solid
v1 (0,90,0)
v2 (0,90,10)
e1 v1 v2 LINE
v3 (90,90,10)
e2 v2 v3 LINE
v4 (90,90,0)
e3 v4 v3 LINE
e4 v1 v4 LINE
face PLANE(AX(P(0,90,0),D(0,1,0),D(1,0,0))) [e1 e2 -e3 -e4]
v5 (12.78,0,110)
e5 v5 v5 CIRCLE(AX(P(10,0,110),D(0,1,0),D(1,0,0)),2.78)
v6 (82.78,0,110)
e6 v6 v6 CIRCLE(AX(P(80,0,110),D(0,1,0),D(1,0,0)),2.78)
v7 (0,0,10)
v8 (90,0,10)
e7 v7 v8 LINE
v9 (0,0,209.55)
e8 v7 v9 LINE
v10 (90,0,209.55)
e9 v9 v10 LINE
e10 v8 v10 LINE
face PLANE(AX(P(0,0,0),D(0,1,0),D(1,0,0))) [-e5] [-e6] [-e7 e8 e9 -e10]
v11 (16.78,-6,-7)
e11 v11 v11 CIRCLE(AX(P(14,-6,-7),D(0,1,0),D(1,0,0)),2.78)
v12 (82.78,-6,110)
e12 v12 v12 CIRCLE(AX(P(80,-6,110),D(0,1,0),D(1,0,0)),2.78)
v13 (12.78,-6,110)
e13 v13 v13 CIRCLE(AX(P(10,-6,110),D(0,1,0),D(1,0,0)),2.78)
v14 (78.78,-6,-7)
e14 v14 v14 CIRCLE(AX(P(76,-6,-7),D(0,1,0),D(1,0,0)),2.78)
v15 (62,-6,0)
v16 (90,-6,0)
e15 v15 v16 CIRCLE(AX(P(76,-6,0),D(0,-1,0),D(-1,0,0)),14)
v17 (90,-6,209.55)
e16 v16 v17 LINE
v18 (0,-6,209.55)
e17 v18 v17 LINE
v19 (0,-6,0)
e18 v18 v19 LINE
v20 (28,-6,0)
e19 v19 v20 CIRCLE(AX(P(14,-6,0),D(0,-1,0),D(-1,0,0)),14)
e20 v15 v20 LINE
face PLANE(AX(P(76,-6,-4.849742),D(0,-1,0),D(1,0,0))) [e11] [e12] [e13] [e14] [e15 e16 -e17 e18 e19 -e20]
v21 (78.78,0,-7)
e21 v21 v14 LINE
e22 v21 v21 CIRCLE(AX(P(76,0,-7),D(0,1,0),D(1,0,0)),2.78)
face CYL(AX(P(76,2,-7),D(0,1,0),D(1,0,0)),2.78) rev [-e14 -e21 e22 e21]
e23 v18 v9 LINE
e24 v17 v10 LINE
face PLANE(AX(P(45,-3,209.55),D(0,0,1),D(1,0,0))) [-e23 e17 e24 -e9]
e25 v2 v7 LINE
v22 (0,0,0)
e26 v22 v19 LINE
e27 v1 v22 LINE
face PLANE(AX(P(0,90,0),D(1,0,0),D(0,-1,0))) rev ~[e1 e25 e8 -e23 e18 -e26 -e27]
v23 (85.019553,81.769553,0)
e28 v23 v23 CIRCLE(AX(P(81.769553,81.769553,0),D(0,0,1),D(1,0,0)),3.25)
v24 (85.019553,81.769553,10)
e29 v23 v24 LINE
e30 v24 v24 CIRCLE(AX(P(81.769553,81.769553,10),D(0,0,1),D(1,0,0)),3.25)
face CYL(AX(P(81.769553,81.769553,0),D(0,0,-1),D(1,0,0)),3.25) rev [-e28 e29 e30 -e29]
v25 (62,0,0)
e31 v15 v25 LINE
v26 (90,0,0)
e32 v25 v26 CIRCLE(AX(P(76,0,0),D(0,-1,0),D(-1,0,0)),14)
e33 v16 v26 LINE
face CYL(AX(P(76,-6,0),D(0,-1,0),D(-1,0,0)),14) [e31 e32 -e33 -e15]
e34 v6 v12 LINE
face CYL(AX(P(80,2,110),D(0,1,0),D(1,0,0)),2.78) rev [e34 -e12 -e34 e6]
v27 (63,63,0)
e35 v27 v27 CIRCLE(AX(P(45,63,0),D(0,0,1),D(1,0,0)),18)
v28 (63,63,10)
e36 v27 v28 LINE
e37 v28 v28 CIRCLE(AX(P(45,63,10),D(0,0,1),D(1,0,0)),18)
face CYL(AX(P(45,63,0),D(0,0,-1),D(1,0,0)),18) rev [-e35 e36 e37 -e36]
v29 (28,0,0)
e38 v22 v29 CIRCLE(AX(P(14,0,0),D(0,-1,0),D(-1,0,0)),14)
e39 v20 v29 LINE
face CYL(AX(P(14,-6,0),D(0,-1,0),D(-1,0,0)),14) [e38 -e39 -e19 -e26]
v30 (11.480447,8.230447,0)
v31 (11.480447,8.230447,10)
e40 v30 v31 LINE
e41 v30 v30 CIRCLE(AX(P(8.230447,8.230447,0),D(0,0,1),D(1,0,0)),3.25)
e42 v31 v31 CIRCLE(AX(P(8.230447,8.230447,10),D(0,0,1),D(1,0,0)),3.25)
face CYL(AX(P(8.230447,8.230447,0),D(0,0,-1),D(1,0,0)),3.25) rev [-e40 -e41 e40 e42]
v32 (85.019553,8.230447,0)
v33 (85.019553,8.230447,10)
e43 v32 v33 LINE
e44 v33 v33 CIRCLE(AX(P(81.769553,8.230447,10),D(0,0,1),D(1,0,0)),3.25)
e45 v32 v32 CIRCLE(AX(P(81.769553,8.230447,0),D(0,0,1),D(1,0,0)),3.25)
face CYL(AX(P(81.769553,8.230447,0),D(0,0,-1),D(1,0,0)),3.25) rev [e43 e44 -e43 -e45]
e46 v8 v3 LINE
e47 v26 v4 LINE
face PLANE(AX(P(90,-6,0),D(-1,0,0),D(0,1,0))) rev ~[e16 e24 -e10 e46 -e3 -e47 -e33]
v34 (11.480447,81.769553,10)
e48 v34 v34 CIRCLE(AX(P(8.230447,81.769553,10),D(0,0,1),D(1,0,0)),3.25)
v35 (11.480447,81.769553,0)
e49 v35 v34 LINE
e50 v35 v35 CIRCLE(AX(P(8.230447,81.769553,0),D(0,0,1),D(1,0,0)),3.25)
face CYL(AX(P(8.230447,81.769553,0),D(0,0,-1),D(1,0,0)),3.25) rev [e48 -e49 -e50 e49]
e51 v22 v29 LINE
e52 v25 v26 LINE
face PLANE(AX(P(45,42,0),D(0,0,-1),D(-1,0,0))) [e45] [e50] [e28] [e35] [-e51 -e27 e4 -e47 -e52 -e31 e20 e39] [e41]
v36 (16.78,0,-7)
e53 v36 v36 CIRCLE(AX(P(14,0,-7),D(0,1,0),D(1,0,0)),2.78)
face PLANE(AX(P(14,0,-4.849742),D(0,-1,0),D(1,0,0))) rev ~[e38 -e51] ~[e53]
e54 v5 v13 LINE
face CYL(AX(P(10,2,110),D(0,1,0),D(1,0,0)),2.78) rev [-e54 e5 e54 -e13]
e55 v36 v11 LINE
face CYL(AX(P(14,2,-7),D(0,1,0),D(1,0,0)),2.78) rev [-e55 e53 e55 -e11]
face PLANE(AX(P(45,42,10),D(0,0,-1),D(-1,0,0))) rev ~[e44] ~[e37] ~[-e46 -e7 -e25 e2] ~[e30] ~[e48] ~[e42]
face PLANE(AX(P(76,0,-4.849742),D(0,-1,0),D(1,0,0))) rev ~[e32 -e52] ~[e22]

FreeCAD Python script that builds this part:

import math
import FreeCAD as App
import Part
import Sketcher
Q = App.Units.Quantity


def add_polygon(sketch, points):
    """Adds a closed chain of lines whose ends are joined by coincident constraints."""
    first, n = sketch.GeometryCount, len(points)
    for a, b in zip(points, points[1:] + points[:1]):
        sketch.addGeometry(Part.LineSegment(App.Vector(*a, 0), App.Vector(*b, 0)), False)
    for i in range(n):
        sketch.addConstraint(Sketcher.Constraint("Coincident", first + i, 2, first + (i + 1) % n, 1))

doc = App.newDocument("Part")
body = doc.addObject("PartDesign::Body", "Body")

# Sketch on XZ plane
sketch1 = body.newObject("Sketcher::SketchObject", "Sketch")
sketch1.AttachmentSupport = (doc.getObject("XZ_Plane"), [""])
sketch1.MapMode = "FlatFace"
sketch1.AttachmentOffset = App.Placement(App.Vector(0, 0, -2), App.Rotation())
sketch1.addGeometry(Part.Circle(App.Vector(14, -7, 0), App.Vector(0, 0, 1), 2.78), False)
sketch1.addConstraint([
    Sketcher.Constraint("Diameter", 0, Q("5.56 mm")),
    Sketcher.Constraint("DistanceX", -1, 1, 0, 3, Q("14 mm")),
    Sketcher.Constraint("DistanceY", 0, 3, -1, 1, Q("7 mm")),
])
pad1 = body.newObject("PartDesign::Pad", "Pad")
pad1.Profile = sketch1
pad1.Length = 10
body2 = doc.addObject("PartDesign::Body", "Body001")

# Sketch on XZ plane
sketch2 = body2.newObject("Sketcher::SketchObject", "Sketch001")
sketch2.AttachmentSupport = (doc.getObject("XZ_Plane001"), [""])
sketch2.MapMode = "FlatFace"
sketch2.AttachmentOffset = App.Placement(App.Vector(0, 0, -2), App.Rotation())
sketch2.addGeometry(Part.Circle(App.Vector(76, -7, 0), App.Vector(0, 0, 1), 2.78), False)
sketch2.addConstraint([
    Sketcher.Constraint("Diameter", 0, Q("5.56 mm")),
    Sketcher.Constraint("DistanceX", -1, 1, 0, 3, Q("76 mm")),
    Sketcher.Constraint("DistanceY", 0, 3, -1, 1, Q("7 mm")),
])
pad2 = body2.newObject("PartDesign::Pad", "Pad001")
pad2.Profile = sketch2
pad2.Length = 10
body3 = doc.addObject("PartDesign::Body", "Body002")
body3.AllowCompound = True

# Sketch on XZ plane
sketch3 = body3.newObject("Sketcher::SketchObject", "Sketch002")
sketch3.AttachmentSupport = (doc.getObject("XZ_Plane002"), [""])
sketch3.MapMode = "FlatFace"
sketch3.AttachmentOffset = App.Placement(App.Vector(0, 0, 6), App.Rotation())
sketch3.addGeometry([
    Part.ArcOfCircle(Part.Circle(App.Vector(14, 0, 0), App.Vector(0, 0, 1), 14), math.radians(180), math.radians(360)),
    Part.LineSegment(App.Vector(28, 0, 0), App.Vector(0, 0, 0)),
    Part.ArcOfCircle(Part.Circle(App.Vector(76, 0, 0), App.Vector(0, 0, 1), 14), math.radians(180), math.radians(360)),
    Part.LineSegment(App.Vector(90, 0, 0), App.Vector(62, 0, 0)),
], False)
sketch3.addConstraint([
    Sketcher.Constraint("Coincident", 0, 1, 1, 2),
    Sketcher.Constraint("Coincident", 1, 1, 0, 2),
    Sketcher.Constraint("Coincident", 2, 1, 3, 2),
    Sketcher.Constraint("Coincident", 3, 1, 2, 2),
    Sketcher.Constraint("Horizontal", 1),
    Sketcher.Constraint("Horizontal", 3),
    Sketcher.Constraint("Coincident", 0, 1, -1, 1),
    Sketcher.Constraint("Equal", 0, 2),
    Sketcher.Constraint("PointOnObject", 0, 3, -1),
    Sketcher.Constraint("PointOnObject", 2, 3, -1),
    Sketcher.Constraint("PointOnObject", 2, 1, -1),
    Sketcher.Constraint("Radius", 0, Q("14 mm")),
    Sketcher.Constraint("DistanceX", -1, 1, 2, 3, Q("76 mm")),
])
pad3 = body3.newObject("PartDesign::Pad", "Pad002")
pad3.Profile = sketch3
pad3.Length = 6
pad3.Reversed = True
doc.recompute()

boolean = body3.newObject("PartDesign::Boolean", "Boolean")
boolean.Type = "Cut"
boolean.addObjects([body2])
doc.recompute()

boolean2 = body3.newObject("PartDesign::Boolean", "Boolean001")
boolean2.Type = "Cut"
boolean2.addObjects([body])
body4 = doc.addObject("PartDesign::Body", "Body003")

# Sketch on XZ plane
sketch4 = body4.newObject("Sketcher::SketchObject", "Sketch003")
sketch4.AttachmentSupport = (doc.getObject("XZ_Plane003"), [""])
sketch4.MapMode = "FlatFace"
sketch4.AttachmentOffset = App.Placement(App.Vector(0, 0, -2), App.Rotation())
sketch4.addGeometry(Part.Circle(App.Vector(80, 110, 0), App.Vector(0, 0, 1), 2.78), False)
sketch4.addConstraint([
    Sketcher.Constraint("Diameter", 0, Q("5.56 mm")),
    Sketcher.Constraint("DistanceX", -1, 1, 0, 3, Q("80 mm")),
    Sketcher.Constraint("DistanceY", -1, 1, 0, 3, Q("110 mm")),
])
pad4 = body4.newObject("PartDesign::Pad", "Pad003")
pad4.Profile = sketch4
pad4.Length = 10
body5 = doc.addObject("PartDesign::Body", "Body004")

# Sketch on XZ plane
sketch5 = body5.newObject("Sketcher::SketchObject", "Sketch004")
sketch5.AttachmentSupport = (doc.getObject("XZ_Plane004"), [""])
sketch5.MapMode = "FlatFace"
sketch5.AttachmentOffset = App.Placement(App.Vector(0, 0, -2), App.Rotation())
sketch5.addGeometry(Part.Circle(App.Vector(10, 110, 0), App.Vector(0, 0, 1), 2.78), False)
sketch5.addConstraint([
    Sketcher.Constraint("Diameter", 0, Q("5.56 mm")),
    Sketcher.Constraint("DistanceX", -1, 1, 0, 3, Q("10 mm")),
    Sketcher.Constraint("DistanceY", -1, 1, 0, 3, Q("110 mm")),
])
pad5 = body5.newObject("PartDesign::Pad", "Pad004")
pad5.Profile = sketch5
pad5.Length = 10
body6 = doc.addObject("PartDesign::Body", "Body005")

# Sketch on XY plane
sketch6 = body6.newObject("Sketcher::SketchObject", "Sketch005")
sketch6.AttachmentSupport = (doc.getObject("XY_Plane005"), [""])
sketch6.MapMode = "FlatFace"
add_polygon(sketch6, [(0, 0), (0, -6), (90, -6), (90, 0)])  # lines 0-3
sketch6.addConstraint([
    Sketcher.Constraint("Vertical", 0),
    Sketcher.Constraint("Horizontal", 1),
    Sketcher.Constraint("Vertical", 2),
    Sketcher.Constraint("Horizontal", 3),
    Sketcher.Constraint("Coincident", 3, 2, -1, 1),
    Sketcher.Constraint("DistanceX", 1, 1, 1, 2, Q("90 mm")),
    Sketcher.Constraint("DistanceY", 0, 2, 0, 1, Q("6 mm")),
])
pad6 = body6.newObject("PartDesign::Pad", "Pad005")
pad6.Profile = sketch6
pad6.Length = 209.55
doc.recompute()

boolean3 = body6.newObject("PartDesign::Boolean", "Boolean002")
boolean3.Type = "Cut"
boolean3.addObjects([body5])
doc.recompute()

boolean4 = body6.newObject("PartDesign::Boolean", "Boolean003")
boolean4.Type = "Cut"
boolean4.addObjects([body4])
body7 = doc.addObject("PartDesign::Body", "Body006")

# Sketch on XY plane
sketch7 = body7.newObject("Sketcher::SketchObject", "Sketch006")
sketch7.AttachmentSupport = (doc.getObject("XY_Plane006"), [""])
sketch7.MapMode = "FlatFace"
add_polygon(sketch7, [(0, 90), (0, -6), (90, -6), (90, 90)])  # lines 0-3
sketch7.addGeometry(Part.Circle(App.Vector(81.769553, 8.230447, 0), App.Vector(0, 0, 1), 3.25), False)  # 4
sketch7.addGeometry(Part.Circle(App.Vector(8.230447, 8.230447, 0), App.Vector(0, 0, 1), 3.25), False)  # 5
sketch7.addGeometry(Part.Circle(App.Vector(45, 63, 0), App.Vector(0, 0, 1), 18), False)  # 6
sketch7.addGeometry(Part.Circle(App.Vector(81.769553, 81.769553, 0), App.Vector(0, 0, 1), 3.25), False)  # 7
sketch7.addGeometry(Part.Circle(App.Vector(8.230447, 81.769553, 0), App.Vector(0, 0, 1), 3.25), False)  # 8
sketch7.addConstraint([
    Sketcher.Constraint("Vertical", 0),
    Sketcher.Constraint("Horizontal", 1),
    Sketcher.Constraint("Vertical", 2),
    Sketcher.Constraint("Horizontal", 3),
    Sketcher.Constraint("Equal", 4, 5),
    Sketcher.Constraint("Equal", 5, 7),
    Sketcher.Constraint("Equal", 7, 8),
    Sketcher.Constraint("PointOnObject", 0, 2, -2),
    Sketcher.Constraint("Horizontal", 4, 3, 5, 3),
    Sketcher.Constraint("Horizontal", 7, 3, 8, 3),
    Sketcher.Constraint("Vertical", 4, 3, 7, 3),
    Sketcher.Constraint("Vertical", 5, 3, 8, 3),
    Sketcher.Constraint("Diameter", 6, Q("36 mm")),
    Sketcher.Constraint("Diameter", 4, Q("6.5 mm")),
    Sketcher.Constraint("DistanceX", 1, 1, 1, 2, Q("90 mm")),
    Sketcher.Constraint("DistanceY", 0, 2, 0, 1, Q("96 mm")),
    Sketcher.Constraint("DistanceX", -1, 1, 6, 3, Q("45 mm")),
    Sketcher.Constraint("DistanceY", -1, 1, 6, 3, Q("63 mm")),
    Sketcher.Constraint("DistanceY", 0, 2, -1, 1, Q("6 mm")),
    Sketcher.Constraint("DistanceX", -1, 1, 4, 3, Q("81.769553 mm")),
    Sketcher.Constraint("DistanceY", -1, 1, 4, 3, Q("8.230447 mm")),
    Sketcher.Constraint("DistanceX", -1, 1, 5, 3, Q("8.230447 mm")),
    Sketcher.Constraint("DistanceY", -1, 1, 7, 3, Q("81.769553 mm")),
])
pad7 = body7.newObject("PartDesign::Pad", "Pad006")
pad7.Profile = sketch7
pad7.Length = 10
doc.recompute()

boolean5 = body7.newObject("PartDesign::Boolean", "Boolean004")
boolean5.Type = "Fuse"
boolean5.addObjects([body3])
doc.recompute()

boolean6 = body7.newObject("PartDesign::Boolean", "Boolean005")
boolean6.Type = "Fuse"
boolean6.addObjects([body6])

doc.recompute()
